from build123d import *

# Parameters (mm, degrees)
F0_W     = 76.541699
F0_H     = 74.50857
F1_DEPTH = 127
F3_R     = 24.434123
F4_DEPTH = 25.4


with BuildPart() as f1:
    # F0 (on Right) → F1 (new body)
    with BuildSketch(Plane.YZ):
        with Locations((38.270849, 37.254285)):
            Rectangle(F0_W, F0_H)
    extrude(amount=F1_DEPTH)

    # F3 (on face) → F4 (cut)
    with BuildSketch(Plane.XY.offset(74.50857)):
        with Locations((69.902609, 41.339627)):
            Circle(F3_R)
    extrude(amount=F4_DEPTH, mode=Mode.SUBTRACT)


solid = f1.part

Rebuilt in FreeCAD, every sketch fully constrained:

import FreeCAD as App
import Part
import Sketcher
Q = App.Units.Quantity


def add_polygon(sketch, points):
    """Adds a closed chain of lines whose ends are joined by coincident constraints."""
    first, n = sketch.GeometryCount, len(points)
    for a, b in zip(points, points[1:] + points[:1]):
        sketch.addGeometry(Part.LineSegment(App.Vector(*a, 0), App.Vector(*b, 0)), False)
    for i in range(n):
        sketch.addConstraint(Sketcher.Constraint("Coincident", first + i, 2, first + (i + 1) % n, 1))

doc = App.newDocument("Part")
body = doc.addObject("PartDesign::Body", "Body")

# Sketch on YZ plane
sketch1 = body.newObject("Sketcher::SketchObject", "Sketch")
sketch1.AttachmentSupport = (doc.getObject("YZ_Plane"), [""])
sketch1.MapMode = "FlatFace"
add_polygon(sketch1, [(0, 75), (0, 0), (77, 0), (77, 75)])  # lines 0-3
sketch1.addConstraint(Sketcher.Constraint("Vertical", 0))
sketch1.addConstraint(Sketcher.Constraint("Horizontal", 1))
sketch1.addConstraint(Sketcher.Constraint("Vertical", 2))
sketch1.addConstraint(Sketcher.Constraint("Horizontal", 3))
sketch1.addConstraint(Sketcher.Constraint("Coincident", 0, 2, -1, 1))
sketch1.addConstraint(Sketcher.Constraint("DistanceX", 1, 1, 1, 2, Q("76.541699 mm")))
sketch1.addConstraint(Sketcher.Constraint("DistanceY", 0, 2, 0, 1, Q("74.50857 mm")))
pad1 = body.newObject("PartDesign::Pad", "Pad")
pad1.Profile = sketch1
pad1.Length = Q("5 in")

# Sketch on XY plane
sketch2 = body.newObject("Sketcher::SketchObject", "Sketch001")
sketch2.AttachmentSupport = (doc.getObject("XY_Plane"), [""])
sketch2.MapMode = "FlatFace"
sketch2.AttachmentOffset = App.Placement(App.Vector(0, 0, 74.50857), App.Rotation())
sketch2.addGeometry(Part.Circle(App.Vector(70, 41, 0), App.Vector(0, 0, 1), 24), False)
sketch2.addConstraint(Sketcher.Constraint("Diameter", 0, Q("48.868246 mm")))
sketch2.addConstraint(Sketcher.Constraint("DistanceX", -1, 1, 0, 3, Q("69.902609 mm")))
sketch2.addConstraint(Sketcher.Constraint("DistanceY", -1, 1, 0, 3, Q("41.339627 mm")))
pocket1 = body.newObject("PartDesign::Pocket", "Pocket")
pocket1.Profile = sketch2
pocket1.Length = Q("1 in")
pocket1.Reversed = True

doc.recompute()
